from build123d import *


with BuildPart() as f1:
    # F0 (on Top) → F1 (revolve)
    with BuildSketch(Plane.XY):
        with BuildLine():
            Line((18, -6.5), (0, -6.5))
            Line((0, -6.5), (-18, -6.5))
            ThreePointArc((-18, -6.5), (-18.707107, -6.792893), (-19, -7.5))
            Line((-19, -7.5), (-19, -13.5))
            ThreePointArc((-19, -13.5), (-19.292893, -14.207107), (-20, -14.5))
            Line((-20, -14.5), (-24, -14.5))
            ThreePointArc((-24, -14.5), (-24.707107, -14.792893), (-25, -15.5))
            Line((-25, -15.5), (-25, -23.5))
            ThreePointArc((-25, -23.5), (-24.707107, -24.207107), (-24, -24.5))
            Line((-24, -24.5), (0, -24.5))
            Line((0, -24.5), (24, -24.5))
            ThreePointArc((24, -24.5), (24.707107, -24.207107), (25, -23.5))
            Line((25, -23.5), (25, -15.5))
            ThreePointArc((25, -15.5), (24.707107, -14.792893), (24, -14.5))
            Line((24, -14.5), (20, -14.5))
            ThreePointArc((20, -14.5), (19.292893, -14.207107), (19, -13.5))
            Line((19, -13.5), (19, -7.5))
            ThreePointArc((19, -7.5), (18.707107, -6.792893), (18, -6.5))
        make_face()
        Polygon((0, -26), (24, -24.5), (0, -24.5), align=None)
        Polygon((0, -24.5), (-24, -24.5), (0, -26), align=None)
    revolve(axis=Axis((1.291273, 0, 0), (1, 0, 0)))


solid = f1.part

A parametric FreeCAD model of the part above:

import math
import FreeCAD as App
import Part
import Sketcher

doc = App.newDocument("Part")
body = doc.addObject("PartDesign::Body", "Body")

# Sketch on XY plane
sketch1 = body.newObject("Sketcher::SketchObject", "Sketch")
sketch1.AttachmentSupport = (doc.getObject("XY_Plane"), [""])
sketch1.MapMode = "FlatFace"
sketch1.addGeometry([
    Part.LineSegment(App.Vector(18, -6.5, 0), App.Vector(-18, -6.5, 0)),  # 0
    Part.ArcOfCircle(Part.Circle(App.Vector(-18, -7.5, 0), App.Vector(0, 0, 1), 1), math.radians(90), math.radians(180)),  # 1
    Part.LineSegment(App.Vector(-19, -7.5, 0), App.Vector(-19, -13.5, 0)),  # 2
    Part.ArcOfCircle(Part.Circle(App.Vector(-20, -13.5, 0), App.Vector(0, 0, 1), 1), math.radians(-90), math.radians(0)),  # 3
    Part.LineSegment(App.Vector(-20, -14.5, 0), App.Vector(-24, -14.5, 0)),  # 4
    Part.ArcOfCircle(Part.Circle(App.Vector(-24, -15.5, 0), App.Vector(0, 0, 1), 1), math.radians(90), math.radians(180)),  # 5
    Part.LineSegment(App.Vector(-25, -15.5, 0), App.Vector(-25, -23.5, 0)),  # 6
    Part.ArcOfCircle(Part.Circle(App.Vector(-24, -23.5, 0), App.Vector(0, 0, 1), 1), math.radians(180), math.radians(270)),  # 7
    Part.LineSegment(App.Vector(-24, -24.5, 0), App.Vector(0, -26, 0)),  # 8
    Part.LineSegment(App.Vector(0, -26, 0), App.Vector(24, -24.5, 0)),  # 9
    Part.ArcOfCircle(Part.Circle(App.Vector(24, -23.5, 0), App.Vector(0, 0, 1), 1), math.radians(-90), math.radians(0)),  # 10
    Part.LineSegment(App.Vector(25, -23.5, 0), App.Vector(25, -15.5, 0)),  # 11
    Part.ArcOfCircle(Part.Circle(App.Vector(24, -15.5, 0), App.Vector(0, 0, 1), 1), math.radians(0), math.radians(90)),  # 12
    Part.LineSegment(App.Vector(24, -14.5, 0), App.Vector(20, -14.5, 0)),  # 13
    Part.ArcOfCircle(Part.Circle(App.Vector(20, -13.5, 0), App.Vector(0, 0, 1), 1), math.radians(180), math.radians(270)),  # 14
    Part.LineSegment(App.Vector(19, -13.5, 0), App.Vector(19, -7.5, 0)),  # 15
    Part.ArcOfCircle(Part.Circle(App.Vector(18, -7.5, 0), App.Vector(0, 0, 1), 1), math.radians(0), math.radians(90)),  # 16
], False)
sketch1.addConstraint([
    Sketcher.Constraint("Tangent", 0, 2, 1, 1),
    Sketcher.Constraint("Tangent", 1, 2, 2, 1),
    Sketcher.Constraint("Tangent", 2, 2, 3, 2),
    Sketcher.Constraint("Tangent", 3, 1, 4, 1),
    Sketcher.Constraint("Tangent", 4, 2, 5, 1),
    Sketcher.Constraint("Tangent", 5, 2, 6, 1),
    Sketcher.Constraint("Tangent", 6, 2, 7, 1),
    Sketcher.Constraint("Coincident", 7, 2, 8, 1),
    Sketcher.Constraint("Coincident", 8, 2, 9, 1),
    Sketcher.Constraint("Coincident", 9, 2, 10, 1),
    Sketcher.Constraint("Tangent", 10, 2, 11, 1),
    Sketcher.Constraint("Tangent", 11, 2, 12, 1),
    Sketcher.Constraint("Tangent", 12, 2, 13, 1),
    Sketcher.Constraint("Tangent", 13, 2, 14, 2),
    Sketcher.Constraint("Tangent", 14, 1, 15, 1),
    Sketcher.Constraint("Tangent", 15, 2, 16, 1),
    Sketcher.Constraint("Tangent", 16, 2, 0, 1),
    Sketcher.Constraint("Horizontal", 0),
    Sketcher.Constraint("Vertical", 2),
    Sketcher.Constraint("Horizontal", 4),
    Sketcher.Constraint("Vertical", 6),
    Sketcher.Constraint("Vertical", 11),
    Sketcher.Constraint("Horizontal", 13),
    Sketcher.Constraint("Vertical", 15),
    Sketcher.Constraint("Equal", 1, 3),
    Sketcher.Constraint("Equal", 3, 5),
    Sketcher.Constraint("Equal", 5, 7),
    Sketcher.Constraint("Equal", 7, 10),
    Sketcher.Constraint("Equal", 10, 12),
    Sketcher.Constraint("Equal", 12, 14),
    Sketcher.Constraint("Equal", 14, 16),
    Sketcher.Constraint("Symmetric", 7, 3, 10, 3, -2),
    Sketcher.Constraint("Symmetric", 3, 3, 14, 3, -2),
    Sketcher.Constraint("PointOnObject", 8, 2, -2),
    Sketcher.Constraint("Vertical", 4, 2, 7, 2),
    Sketcher.Constraint("Vertical", 12, 3, 9, 2),
    Sketcher.Constraint("Radius", 1, 0.999999),
    Sketcher.Constraint("DistanceX", 0, 2, 0, 1, 36.0),
    Sketcher.Constraint("DistanceX", 4, 2, 4, 1, 4.0),
    Sketcher.Constraint("DistanceY", 2, 2, 2, 1, 6.0),
    Sketcher.Constraint("DistanceY", 6, 2, 6, 1, 8.0),
    Sketcher.Constraint("DistanceY", 8, 2, -1, 1, 26.0),
    Sketcher.Constraint("DistanceY", 1, 3, -1, 1, 7.499999),
])
revolution = body.newObject("PartDesign::Revolution", "Revolution")
revolution.Profile = sketch1
revolution.ReferenceAxis = (sketch1, ["H_Axis"])
revolution.Angle = 360

doc.recompute()
